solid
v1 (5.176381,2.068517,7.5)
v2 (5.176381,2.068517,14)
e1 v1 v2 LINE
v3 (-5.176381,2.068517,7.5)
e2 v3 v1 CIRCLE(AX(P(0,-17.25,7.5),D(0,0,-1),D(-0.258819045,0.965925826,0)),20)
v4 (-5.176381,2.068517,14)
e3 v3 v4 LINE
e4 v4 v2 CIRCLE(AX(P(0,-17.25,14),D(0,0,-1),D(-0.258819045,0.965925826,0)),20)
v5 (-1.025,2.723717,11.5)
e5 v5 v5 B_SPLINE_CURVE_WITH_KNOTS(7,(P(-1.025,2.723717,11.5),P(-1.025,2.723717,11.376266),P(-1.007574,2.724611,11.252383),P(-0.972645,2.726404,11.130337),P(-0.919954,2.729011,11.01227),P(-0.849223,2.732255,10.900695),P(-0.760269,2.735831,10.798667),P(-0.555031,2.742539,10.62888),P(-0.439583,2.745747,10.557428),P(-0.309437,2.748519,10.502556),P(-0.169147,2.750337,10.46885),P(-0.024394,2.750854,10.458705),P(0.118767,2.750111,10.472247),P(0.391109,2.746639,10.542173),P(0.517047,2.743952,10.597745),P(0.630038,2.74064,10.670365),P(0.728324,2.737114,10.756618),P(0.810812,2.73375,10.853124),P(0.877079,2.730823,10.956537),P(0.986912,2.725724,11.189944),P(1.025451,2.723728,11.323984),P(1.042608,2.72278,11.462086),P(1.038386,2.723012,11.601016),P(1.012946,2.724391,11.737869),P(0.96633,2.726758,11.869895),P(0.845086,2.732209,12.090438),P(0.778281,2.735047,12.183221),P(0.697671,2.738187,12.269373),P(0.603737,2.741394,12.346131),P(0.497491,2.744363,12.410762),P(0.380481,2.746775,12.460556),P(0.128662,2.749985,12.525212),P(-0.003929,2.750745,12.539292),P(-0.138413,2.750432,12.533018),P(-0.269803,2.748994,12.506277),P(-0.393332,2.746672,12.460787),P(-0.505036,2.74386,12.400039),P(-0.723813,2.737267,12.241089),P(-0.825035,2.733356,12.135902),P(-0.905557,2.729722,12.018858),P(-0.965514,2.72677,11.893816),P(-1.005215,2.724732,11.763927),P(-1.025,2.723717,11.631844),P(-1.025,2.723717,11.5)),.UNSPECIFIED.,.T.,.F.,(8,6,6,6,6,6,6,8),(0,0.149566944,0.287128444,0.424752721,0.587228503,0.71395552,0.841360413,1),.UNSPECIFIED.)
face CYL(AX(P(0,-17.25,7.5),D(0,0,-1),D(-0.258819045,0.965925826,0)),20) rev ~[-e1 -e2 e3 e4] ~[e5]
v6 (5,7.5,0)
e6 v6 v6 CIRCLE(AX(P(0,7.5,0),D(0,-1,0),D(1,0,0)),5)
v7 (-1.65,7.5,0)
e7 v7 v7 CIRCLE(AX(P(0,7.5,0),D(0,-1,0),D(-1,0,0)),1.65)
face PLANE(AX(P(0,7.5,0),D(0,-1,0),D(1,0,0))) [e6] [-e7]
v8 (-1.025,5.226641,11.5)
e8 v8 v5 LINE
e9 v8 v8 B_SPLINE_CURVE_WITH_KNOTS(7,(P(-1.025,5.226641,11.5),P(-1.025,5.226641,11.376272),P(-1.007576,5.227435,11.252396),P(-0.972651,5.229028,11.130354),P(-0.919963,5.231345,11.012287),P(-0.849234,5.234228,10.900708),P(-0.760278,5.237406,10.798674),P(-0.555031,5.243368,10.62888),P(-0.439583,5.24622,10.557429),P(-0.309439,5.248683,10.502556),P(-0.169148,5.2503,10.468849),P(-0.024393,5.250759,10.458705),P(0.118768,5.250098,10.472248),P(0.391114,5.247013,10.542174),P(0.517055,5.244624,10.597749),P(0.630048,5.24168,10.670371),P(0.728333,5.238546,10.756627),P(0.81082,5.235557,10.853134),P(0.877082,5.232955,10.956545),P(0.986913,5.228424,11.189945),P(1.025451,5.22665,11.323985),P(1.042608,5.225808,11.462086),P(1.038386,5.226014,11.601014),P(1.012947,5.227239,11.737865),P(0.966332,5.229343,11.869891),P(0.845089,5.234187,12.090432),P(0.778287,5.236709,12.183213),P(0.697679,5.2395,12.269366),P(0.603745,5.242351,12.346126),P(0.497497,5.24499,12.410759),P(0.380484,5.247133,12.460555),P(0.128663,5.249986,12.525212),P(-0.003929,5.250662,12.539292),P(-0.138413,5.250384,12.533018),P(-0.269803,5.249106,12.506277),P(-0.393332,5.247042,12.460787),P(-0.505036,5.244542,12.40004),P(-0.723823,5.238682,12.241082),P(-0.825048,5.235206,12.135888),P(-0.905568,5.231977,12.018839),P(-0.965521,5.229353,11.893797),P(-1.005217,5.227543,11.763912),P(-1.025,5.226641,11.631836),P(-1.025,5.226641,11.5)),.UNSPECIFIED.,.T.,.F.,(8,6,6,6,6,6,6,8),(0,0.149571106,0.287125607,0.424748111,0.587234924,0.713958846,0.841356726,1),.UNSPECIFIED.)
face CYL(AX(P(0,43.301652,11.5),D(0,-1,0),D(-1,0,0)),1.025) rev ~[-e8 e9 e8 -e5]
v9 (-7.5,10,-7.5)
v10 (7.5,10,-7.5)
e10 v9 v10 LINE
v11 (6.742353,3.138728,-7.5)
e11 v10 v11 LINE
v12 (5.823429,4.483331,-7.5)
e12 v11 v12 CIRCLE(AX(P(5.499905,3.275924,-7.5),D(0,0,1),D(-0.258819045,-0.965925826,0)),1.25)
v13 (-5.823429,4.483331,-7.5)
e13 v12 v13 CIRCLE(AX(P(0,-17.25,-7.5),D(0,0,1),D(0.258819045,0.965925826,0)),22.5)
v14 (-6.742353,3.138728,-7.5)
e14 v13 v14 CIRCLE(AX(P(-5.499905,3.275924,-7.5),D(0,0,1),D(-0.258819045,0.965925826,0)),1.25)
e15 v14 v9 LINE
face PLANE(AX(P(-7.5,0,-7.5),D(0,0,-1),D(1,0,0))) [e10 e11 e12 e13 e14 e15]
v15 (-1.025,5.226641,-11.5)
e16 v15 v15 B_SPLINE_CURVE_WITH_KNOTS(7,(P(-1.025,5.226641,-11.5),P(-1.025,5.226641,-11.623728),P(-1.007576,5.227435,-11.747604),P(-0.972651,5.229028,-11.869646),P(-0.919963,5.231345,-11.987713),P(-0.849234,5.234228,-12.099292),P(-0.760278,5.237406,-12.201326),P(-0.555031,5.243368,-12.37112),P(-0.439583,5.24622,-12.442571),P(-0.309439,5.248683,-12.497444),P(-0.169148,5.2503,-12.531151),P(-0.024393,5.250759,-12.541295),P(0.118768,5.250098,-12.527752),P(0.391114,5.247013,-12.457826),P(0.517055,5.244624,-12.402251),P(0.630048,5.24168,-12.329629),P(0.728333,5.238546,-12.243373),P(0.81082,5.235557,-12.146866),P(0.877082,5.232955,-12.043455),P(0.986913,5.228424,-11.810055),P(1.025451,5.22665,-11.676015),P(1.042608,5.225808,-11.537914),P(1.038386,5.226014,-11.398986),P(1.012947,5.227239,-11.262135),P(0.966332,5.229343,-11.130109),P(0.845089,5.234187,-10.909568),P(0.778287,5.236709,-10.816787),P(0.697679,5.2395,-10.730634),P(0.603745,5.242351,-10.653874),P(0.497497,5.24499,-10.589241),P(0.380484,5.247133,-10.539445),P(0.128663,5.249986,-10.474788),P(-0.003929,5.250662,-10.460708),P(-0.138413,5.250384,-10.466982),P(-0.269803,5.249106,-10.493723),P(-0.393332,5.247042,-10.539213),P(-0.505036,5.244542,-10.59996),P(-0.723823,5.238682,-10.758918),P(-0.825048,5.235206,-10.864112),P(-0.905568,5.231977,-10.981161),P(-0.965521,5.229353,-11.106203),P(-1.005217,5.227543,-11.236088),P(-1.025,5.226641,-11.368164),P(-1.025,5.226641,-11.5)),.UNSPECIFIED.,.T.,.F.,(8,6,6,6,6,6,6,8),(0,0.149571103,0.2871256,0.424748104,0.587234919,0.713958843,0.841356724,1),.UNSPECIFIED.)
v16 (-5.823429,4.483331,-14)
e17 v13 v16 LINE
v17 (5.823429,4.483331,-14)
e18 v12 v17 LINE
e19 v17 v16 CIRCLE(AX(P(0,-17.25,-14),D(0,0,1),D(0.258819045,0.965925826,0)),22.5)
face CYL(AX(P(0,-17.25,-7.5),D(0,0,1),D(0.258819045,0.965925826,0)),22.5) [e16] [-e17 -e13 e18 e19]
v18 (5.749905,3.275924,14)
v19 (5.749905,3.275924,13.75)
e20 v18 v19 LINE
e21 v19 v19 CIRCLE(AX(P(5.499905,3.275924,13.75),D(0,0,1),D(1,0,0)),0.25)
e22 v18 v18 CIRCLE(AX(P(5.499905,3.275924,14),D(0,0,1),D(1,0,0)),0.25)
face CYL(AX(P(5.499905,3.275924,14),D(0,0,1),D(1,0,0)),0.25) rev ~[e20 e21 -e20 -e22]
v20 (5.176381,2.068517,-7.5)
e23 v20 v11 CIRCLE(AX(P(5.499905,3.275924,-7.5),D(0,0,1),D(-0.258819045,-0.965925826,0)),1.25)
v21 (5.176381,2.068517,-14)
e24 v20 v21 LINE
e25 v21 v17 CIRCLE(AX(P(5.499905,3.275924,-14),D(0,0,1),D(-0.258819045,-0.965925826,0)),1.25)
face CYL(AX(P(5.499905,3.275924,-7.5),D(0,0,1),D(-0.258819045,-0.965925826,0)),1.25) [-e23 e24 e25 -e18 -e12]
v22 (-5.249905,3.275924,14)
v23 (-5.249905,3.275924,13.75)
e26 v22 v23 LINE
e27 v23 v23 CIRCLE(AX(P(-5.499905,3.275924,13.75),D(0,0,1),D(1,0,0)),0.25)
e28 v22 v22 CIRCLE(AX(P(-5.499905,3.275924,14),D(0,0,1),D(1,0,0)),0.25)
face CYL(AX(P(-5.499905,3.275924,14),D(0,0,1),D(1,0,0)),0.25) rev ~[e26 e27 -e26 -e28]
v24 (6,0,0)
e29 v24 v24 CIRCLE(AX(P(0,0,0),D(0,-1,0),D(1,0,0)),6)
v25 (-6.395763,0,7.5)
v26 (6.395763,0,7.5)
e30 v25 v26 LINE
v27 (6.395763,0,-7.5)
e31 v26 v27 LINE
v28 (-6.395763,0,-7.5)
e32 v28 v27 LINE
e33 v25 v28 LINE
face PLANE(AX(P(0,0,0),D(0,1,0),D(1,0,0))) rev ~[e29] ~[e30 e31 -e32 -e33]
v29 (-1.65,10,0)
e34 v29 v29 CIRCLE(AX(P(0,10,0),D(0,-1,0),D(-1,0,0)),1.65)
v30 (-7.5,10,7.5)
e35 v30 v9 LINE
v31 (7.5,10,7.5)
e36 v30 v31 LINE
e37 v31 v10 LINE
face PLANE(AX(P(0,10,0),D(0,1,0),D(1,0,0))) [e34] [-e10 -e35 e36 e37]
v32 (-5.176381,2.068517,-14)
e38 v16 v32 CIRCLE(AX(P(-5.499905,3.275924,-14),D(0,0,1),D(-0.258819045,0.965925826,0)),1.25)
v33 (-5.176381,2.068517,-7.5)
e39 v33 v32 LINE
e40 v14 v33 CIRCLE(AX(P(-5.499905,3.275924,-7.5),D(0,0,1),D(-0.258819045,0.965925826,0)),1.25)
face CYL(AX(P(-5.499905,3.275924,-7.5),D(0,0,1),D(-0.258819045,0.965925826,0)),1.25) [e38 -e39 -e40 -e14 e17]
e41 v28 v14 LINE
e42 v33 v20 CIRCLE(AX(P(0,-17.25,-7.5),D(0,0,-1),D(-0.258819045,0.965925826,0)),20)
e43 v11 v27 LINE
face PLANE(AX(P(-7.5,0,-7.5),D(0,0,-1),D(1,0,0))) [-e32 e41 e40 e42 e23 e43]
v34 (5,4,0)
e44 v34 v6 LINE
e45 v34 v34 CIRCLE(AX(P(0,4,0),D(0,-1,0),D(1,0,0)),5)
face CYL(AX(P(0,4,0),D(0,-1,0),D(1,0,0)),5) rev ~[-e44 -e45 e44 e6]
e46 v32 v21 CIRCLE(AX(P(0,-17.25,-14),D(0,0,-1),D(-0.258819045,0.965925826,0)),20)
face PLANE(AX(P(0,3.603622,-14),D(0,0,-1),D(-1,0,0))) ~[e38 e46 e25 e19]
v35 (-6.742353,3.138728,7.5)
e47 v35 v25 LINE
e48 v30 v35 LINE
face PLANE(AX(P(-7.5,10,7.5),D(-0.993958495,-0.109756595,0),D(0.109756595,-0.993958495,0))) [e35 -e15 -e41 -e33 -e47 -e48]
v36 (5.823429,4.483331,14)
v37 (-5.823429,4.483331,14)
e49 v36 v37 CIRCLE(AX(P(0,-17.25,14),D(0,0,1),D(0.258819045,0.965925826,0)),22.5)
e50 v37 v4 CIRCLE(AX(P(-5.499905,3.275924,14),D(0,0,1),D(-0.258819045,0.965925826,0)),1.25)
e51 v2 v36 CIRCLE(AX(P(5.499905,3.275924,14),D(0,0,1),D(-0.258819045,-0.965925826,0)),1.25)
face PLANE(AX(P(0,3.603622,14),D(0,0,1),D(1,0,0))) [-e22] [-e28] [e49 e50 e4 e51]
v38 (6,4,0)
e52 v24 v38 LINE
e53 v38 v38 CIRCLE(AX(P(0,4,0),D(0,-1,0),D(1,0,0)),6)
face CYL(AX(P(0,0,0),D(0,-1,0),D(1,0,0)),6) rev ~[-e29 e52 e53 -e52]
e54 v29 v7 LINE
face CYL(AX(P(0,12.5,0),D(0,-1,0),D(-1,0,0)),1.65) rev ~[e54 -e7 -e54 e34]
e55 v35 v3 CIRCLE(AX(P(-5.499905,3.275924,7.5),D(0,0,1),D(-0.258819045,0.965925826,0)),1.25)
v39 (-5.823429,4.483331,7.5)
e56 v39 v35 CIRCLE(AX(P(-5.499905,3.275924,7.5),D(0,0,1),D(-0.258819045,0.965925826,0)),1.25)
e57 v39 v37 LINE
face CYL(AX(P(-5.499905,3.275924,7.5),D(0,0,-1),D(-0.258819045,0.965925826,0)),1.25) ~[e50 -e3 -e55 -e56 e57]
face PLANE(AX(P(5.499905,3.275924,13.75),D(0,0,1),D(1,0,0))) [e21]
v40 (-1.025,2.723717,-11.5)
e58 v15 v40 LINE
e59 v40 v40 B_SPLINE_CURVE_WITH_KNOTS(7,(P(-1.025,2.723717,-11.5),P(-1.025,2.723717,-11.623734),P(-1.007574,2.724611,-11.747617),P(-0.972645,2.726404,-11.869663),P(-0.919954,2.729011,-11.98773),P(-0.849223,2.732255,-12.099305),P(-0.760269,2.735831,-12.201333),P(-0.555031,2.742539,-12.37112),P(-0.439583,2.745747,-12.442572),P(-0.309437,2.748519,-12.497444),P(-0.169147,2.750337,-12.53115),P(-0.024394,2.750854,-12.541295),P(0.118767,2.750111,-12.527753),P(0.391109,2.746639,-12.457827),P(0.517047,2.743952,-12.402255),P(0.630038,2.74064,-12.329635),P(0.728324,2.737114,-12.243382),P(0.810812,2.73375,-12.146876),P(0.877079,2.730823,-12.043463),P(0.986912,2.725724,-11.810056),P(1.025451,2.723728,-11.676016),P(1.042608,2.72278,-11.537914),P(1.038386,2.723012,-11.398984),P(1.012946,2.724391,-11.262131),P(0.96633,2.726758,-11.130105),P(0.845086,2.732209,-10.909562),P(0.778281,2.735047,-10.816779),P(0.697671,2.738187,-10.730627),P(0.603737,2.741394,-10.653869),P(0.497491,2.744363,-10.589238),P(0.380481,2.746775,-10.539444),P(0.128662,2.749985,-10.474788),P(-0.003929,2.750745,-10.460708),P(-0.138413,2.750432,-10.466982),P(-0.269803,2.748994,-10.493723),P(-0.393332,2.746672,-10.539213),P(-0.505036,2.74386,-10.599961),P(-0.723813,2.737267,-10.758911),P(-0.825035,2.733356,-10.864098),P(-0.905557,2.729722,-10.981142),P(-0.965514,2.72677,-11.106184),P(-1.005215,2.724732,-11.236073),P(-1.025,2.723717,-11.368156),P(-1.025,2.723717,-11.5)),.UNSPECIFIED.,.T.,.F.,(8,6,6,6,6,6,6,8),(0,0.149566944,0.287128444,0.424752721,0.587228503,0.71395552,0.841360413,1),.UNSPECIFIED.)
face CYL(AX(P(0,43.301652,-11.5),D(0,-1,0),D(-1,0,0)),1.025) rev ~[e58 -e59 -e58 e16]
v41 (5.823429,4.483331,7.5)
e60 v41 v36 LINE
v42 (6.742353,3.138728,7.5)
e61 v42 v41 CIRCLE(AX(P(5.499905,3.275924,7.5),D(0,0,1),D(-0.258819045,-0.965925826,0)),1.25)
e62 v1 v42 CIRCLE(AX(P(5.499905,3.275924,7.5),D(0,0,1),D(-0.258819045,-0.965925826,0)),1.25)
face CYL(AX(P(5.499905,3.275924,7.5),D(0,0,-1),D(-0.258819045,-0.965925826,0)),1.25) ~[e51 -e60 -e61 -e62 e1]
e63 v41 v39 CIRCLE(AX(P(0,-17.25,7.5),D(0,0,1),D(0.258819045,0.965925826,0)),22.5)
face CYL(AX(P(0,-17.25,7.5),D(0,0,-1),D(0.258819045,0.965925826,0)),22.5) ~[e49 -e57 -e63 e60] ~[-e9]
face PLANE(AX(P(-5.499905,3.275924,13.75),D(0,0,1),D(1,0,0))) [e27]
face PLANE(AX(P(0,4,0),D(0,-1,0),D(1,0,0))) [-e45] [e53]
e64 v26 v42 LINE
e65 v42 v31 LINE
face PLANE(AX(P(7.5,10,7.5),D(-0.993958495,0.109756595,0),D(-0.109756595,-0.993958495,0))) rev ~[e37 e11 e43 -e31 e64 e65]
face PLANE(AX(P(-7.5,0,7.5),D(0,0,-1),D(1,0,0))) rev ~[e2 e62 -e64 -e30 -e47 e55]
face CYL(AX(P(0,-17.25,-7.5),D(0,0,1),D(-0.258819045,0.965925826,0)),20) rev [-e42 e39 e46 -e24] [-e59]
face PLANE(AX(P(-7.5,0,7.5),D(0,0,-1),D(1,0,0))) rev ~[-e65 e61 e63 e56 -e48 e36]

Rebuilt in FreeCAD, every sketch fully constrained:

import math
import FreeCAD as App
import Part
import Sketcher


def add_polygon(sketch, points):
    """Adds a closed chain of lines whose ends are joined by coincident constraints."""
    first, n = sketch.GeometryCount, len(points)
    for a, b in zip(points, points[1:] + points[:1]):
        sketch.addGeometry(Part.LineSegment(App.Vector(*a, 0), App.Vector(*b, 0)), False)
    for i in range(n):
        sketch.addConstraint(Sketcher.Constraint("Coincident", first + i, 2, first + (i + 1) % n, 1))

doc = App.newDocument("Part")
params = doc.addObject("Spreadsheet::Sheet", "Params")
for row, (alias, value) in enumerate([
    ("sketch1_width", "15 mm"),
    ("pad1_length", "10 mm"),
    ("sketch2_diameter", "12 mm"),
    ("pocket1_length", "4 mm"),
    ("sketch3_diameter", "10 mm"),
    ("pocket2_length", "3.5 mm"),
    ("sketch4_radius", "20 mm"),
    ("sketch4_radius2", "22.5 mm"),
    ("pad2_length", "6.5 mm"),
    ("sketch5_diameter", "3.3 mm"),
    ("hole_diameter", "3.3 mm"),
    ("hole_depth", "2.5 mm"),
    ("sketch6_diameter", "2.05 mm"),
    ("hole2_diameter", "2.05 mm"),
    ("sketch7_diameter", "0.5 mm"),
    ("pocket3_length", "0.25 mm"),
    ("sketch8_height", "10 mm"),
    ("sketch9_height", "10 mm"),
], start=1):
    params.set(f"A{row}", alias)
    params.set(f"B{row}", "=" + value)
    params.setAlias(f"B{row}", alias)

body = doc.addObject("PartDesign::Body", "Body")

# Sketch on XZ plane
sketch1 = body.newObject("Sketcher::SketchObject", "Sketch")
sketch1.AttachmentSupport = (doc.getObject("XZ_Plane"), [""])
sketch1.MapMode = "FlatFace"
add_polygon(sketch1, [(-8, -8), (-8, 8), (8, 8), (8, -8)])  # lines 0-3
sketch1.addConstraint([
    Sketcher.Constraint("Vertical", 0),
    Sketcher.Constraint("Horizontal", 1),
    Sketcher.Constraint("Vertical", 2),
    Sketcher.Constraint("Horizontal", 3),
    Sketcher.Constraint("Symmetric", 0, 2, 2, 2, -1, 1),
    Sketcher.Constraint("Equal", 3, 0),
    Sketcher.Constraint("DistanceX", 1, 1, 1, 2, 15.0),
])
sketch1.setExpression("Constraints[10]", "Params.sketch1_width")
pad1 = body.newObject("PartDesign::Pad", "Pad")
pad1.Profile = sketch1
pad1.setExpression("Length", "Params.pad1_length")
pad1.Reversed = True

# Sketch on XZ plane
sketch2 = body.newObject("Sketcher::SketchObject", "Sketch001")
sketch2.AttachmentSupport = (doc.getObject("XZ_Plane"), [""])
sketch2.MapMode = "FlatFace"
sketch2.addGeometry(Part.Circle(App.Vector(0, 0, 0), App.Vector(0, 0, 1), 6), False)
sketch2.addConstraint([
    Sketcher.Constraint("Coincident", 0, 3, -1, 1),
    Sketcher.Constraint("Diameter", 0, 12.0),
])
sketch2.setExpression("Constraints[1]", "Params.sketch2_diameter")
pocket1 = body.newObject("PartDesign::Pocket", "Pocket")
pocket1.Profile = sketch2
pocket1.setExpression("Length", "Params.pocket1_length")

# Sketch on XZ plane
sketch3 = body.newObject("Sketcher::SketchObject", "Sketch002")
sketch3.AttachmentSupport = (doc.getObject("XZ_Plane"), [""])
sketch3.MapMode = "FlatFace"
sketch3.AttachmentOffset = App.Placement(App.Vector(0, 0, -4), App.Rotation())
sketch3.addGeometry(Part.Circle(App.Vector(0, 0, 0), App.Vector(0, 0, 1), 5), False)
sketch3.addConstraint([
    Sketcher.Constraint("Coincident", 0, 3, -1, 1),
    Sketcher.Constraint("Diameter", 0, 10.0),
])
sketch3.setExpression("Constraints[1]", "Params.sketch3_diameter")
pocket2 = body.newObject("PartDesign::Pocket", "Pocket001")
pocket2.Profile = sketch3
pocket2.setExpression("Length", "Params.pocket2_length")

# Sketch on XY plane
sketch4 = body.newObject("Sketcher::SketchObject", "Sketch003")
sketch4.AttachmentSupport = (doc.getObject("XY_Plane"), [""])
sketch4.MapMode = "FlatFace"
sketch4.AttachmentOffset = App.Placement(App.Vector(0, 0, 7.5), App.Rotation())
sketch4.addGeometry([
    Part.ArcOfCircle(Part.Circle(App.Vector(0, -17.3, 0), App.Vector(0, 0, 1), 22.5), math.radians(75), math.radians(105)),
    Part.ArcOfCircle(Part.Circle(App.Vector(-5.5, 3.3, 0), App.Vector(0, 0, 1), 1.2), math.radians(105), math.radians(285)),
    Part.ArcOfCircle(Part.Circle(App.Vector(0, -17.3, 0), App.Vector(0, 0, 1), 20), math.radians(75), math.radians(105)),
    Part.ArcOfCircle(Part.Circle(App.Vector(5.5, 3.3, 0), App.Vector(0, 0, 1), 1.2), math.radians(-105), math.radians(75)),
], False)
sketch4.addConstraint([
    Sketcher.Constraint("Tangent", 0, 2, 1, 1),
    Sketcher.Constraint("Tangent", 1, 2, 2, 2),
    Sketcher.Constraint("Tangent", 2, 1, 3, 1),
    Sketcher.Constraint("Tangent", 3, 2, 0, 1),
    Sketcher.Constraint("Coincident", 2, 3, 0, 3),
    Sketcher.Constraint("Symmetric", 1, 3, 3, 3, -2),
    Sketcher.Constraint("Radius", 2, 20.0),
    Sketcher.Constraint("Radius", 0, 22.5),
    Sketcher.Constraint("DistanceY", 0, 3, -1, 1, 17.25),
    Sketcher.Constraint("DistanceX", 0, 2, -1, 1, 5.823429),
])
sketch4.setExpression("Constraints[6]", "Params.sketch4_radius")
sketch4.setExpression("Constraints[7]", "Params.sketch4_radius2")
pad2 = body.newObject("PartDesign::Pad", "Pad001")
pad2.Profile = sketch4
pad2.setExpression("Length", "Params.pad2_length")
doc.recompute()

mirrored = body.newObject("PartDesign::Mirrored", "Mirrored")
mirrored.Originals = [pad2]
mirrored.MirrorPlane = (doc.getObject("XY_Plane"), [""])
body.Tip = mirrored

# Sketch on XZ plane
sketch5 = body.newObject("Sketcher::SketchObject", "Sketch004")
sketch5.AttachmentSupport = (doc.getObject("XZ_Plane"), [""])
sketch5.MapMode = "FlatFace"
sketch5.AttachmentOffset = App.Placement(App.Vector(0, 0, -10), App.Rotation())
sketch5.addGeometry(Part.Circle(App.Vector(0, 0, 0), App.Vector(0, 0, 1), 1.6), False)
sketch5.addConstraint([
    Sketcher.Constraint("Coincident", 0, 3, -1, 1),
    Sketcher.Constraint("Diameter", 0, 3.3),
])
sketch5.setExpression("Constraints[1]", "Params.sketch5_diameter")
doc.recompute()
hole = body.newObject("PartDesign::Hole", "Hole")
hole.Profile = sketch5
hole.ThreadType = "None"
hole.setExpression("Diameter", "Params.hole_diameter")
hole.DepthType = "Dimension"
hole.setExpression("Depth", "Params.hole_depth")
hole.DrillPoint = "Flat"
hole.Reversed = True

# Sketch on XZ plane
sketch6 = body.newObject("Sketcher::SketchObject", "Sketch005")
sketch6.AttachmentSupport = (doc.getObject("XZ_Plane"), [""])
sketch6.MapMode = "FlatFace"
sketch6.AttachmentOffset = App.Placement(App.Vector(0, 0, -10), App.Rotation())
sketch6.addGeometry([
    Part.Circle(App.Vector(0, -11.5, 0), App.Vector(0, 0, 1), 1),
    Part.Circle(App.Vector(0, 11.5, 0), App.Vector(0, 0, 1), 1),
], False)
sketch6.addConstraint([
    Sketcher.Constraint("Equal", 0, 1),
    Sketcher.Constraint("Symmetric", 0, 3, 1, 3, -1, 1),
    Sketcher.Constraint("PointOnObject", 0, 3, -2),
    Sketcher.Constraint("Diameter", 0, 2.05),
    Sketcher.Constraint("DistanceY", 0, 3, 1, 3, 23.0),
])
sketch6.setExpression("Constraints[3]", "Params.sketch6_diameter")
doc.recompute()
hole2 = body.newObject("PartDesign::Hole", "Hole001")
hole2.Profile = sketch6
hole2.ThreadType = "None"
hole2.setExpression("Diameter", "Params.hole2_diameter")
hole2.DepthType = "ThroughAll"
hole2.Reversed = True

# Sketch on XY plane
sketch7 = body.newObject("Sketcher::SketchObject", "Sketch006")
sketch7.AttachmentSupport = (doc.getObject("XY_Plane"), [""])
sketch7.MapMode = "FlatFace"
sketch7.AttachmentOffset = App.Placement(App.Vector(0, 0, 14), App.Rotation())
sketch7.addGeometry([
    Part.Circle(App.Vector(-5.5, 3.28, 0), App.Vector(0, 0, 1), 0.25),
    Part.Circle(App.Vector(5.5, 3.28, 0), App.Vector(0, 0, 1), 0.25),
], False)
sketch7.addConstraint([
    Sketcher.Constraint("Equal", 0, 1),
    Sketcher.Constraint("Symmetric", 0, 3, 1, 3, -2),
    Sketcher.Constraint("Diameter", 0, 0.5),
    Sketcher.Constraint("DistanceX", 0, 3, 1, 3, 10.999809),
    Sketcher.Constraint("DistanceY", -1, 1, 0, 3, 3.275924),
])
sketch7.setExpression("Constraints[2]", "Params.sketch7_diameter")
pocket3 = body.newObject("PartDesign::Pocket", "Pocket002")
pocket3.Profile = sketch7
pocket3.setExpression("Length", "Params.pocket3_length")

# Sketch on XY plane
sketch8 = body.newObject("Sketcher::SketchObject", "Sketch007")
sketch8.AttachmentSupport = (doc.getObject("XY_Plane"), [""])
sketch8.MapMode = "FlatFace"
sketch8.AttachmentOffset = App.Placement(App.Vector(0, 0, 7.5), App.Rotation())
add_polygon(sketch8, [(-6.4, 0), (-7.5, 10), (-7.5, 0)])  # lines 0-2
sketch8.addConstraint([
    Sketcher.Constraint("Vertical", 1),
    Sketcher.Constraint("Horizontal", 2),
    Sketcher.Constraint("PointOnObject", 1, 2, -1),
    Sketcher.Constraint("DistanceY", 1, 2, 1, 1, 10.0),
    Sketcher.Constraint("DistanceX", 0, 2, -1, 1, 7.5),
    Sketcher.Constraint("DistanceX", 2, 1, 2, 2, 1.104237),
])
sketch8.setExpression("Constraints[6]", "Params.sketch8_height")
pocket4 = body.newObject("PartDesign::Pocket", "Pocket003")
pocket4.Profile = sketch8
pocket4.Type = "UpToFirst"

# Sketch on XY plane
sketch9 = body.newObject("Sketcher::SketchObject", "Sketch008")
sketch9.AttachmentSupport = (doc.getObject("XY_Plane"), [""])
sketch9.MapMode = "FlatFace"
sketch9.AttachmentOffset = App.Placement(App.Vector(0, 0, 7.5), App.Rotation())
add_polygon(sketch9, [(7.5, 10), (6.4, 0), (7.5, 0)])  # lines 0-2
sketch9.addConstraint([
    Sketcher.Constraint("Horizontal", 1),
    Sketcher.Constraint("Vertical", 2),
    Sketcher.Constraint("PointOnObject", 0, 2, -1),
    Sketcher.Constraint("DistanceY", 2, 1, 2, 2, 10.0),
    Sketcher.Constraint("DistanceX", -1, 1, 1, 2, 7.5),
    Sketcher.Constraint("DistanceX", 1, 1, 1, 2, 1.104237),
])
sketch9.setExpression("Constraints[6]", "Params.sketch9_height")
pocket5 = body.newObject("PartDesign::Pocket", "Pocket004")
pocket5.Profile = sketch9
pocket5.Type = "UpToFirst"

doc.recompute()
